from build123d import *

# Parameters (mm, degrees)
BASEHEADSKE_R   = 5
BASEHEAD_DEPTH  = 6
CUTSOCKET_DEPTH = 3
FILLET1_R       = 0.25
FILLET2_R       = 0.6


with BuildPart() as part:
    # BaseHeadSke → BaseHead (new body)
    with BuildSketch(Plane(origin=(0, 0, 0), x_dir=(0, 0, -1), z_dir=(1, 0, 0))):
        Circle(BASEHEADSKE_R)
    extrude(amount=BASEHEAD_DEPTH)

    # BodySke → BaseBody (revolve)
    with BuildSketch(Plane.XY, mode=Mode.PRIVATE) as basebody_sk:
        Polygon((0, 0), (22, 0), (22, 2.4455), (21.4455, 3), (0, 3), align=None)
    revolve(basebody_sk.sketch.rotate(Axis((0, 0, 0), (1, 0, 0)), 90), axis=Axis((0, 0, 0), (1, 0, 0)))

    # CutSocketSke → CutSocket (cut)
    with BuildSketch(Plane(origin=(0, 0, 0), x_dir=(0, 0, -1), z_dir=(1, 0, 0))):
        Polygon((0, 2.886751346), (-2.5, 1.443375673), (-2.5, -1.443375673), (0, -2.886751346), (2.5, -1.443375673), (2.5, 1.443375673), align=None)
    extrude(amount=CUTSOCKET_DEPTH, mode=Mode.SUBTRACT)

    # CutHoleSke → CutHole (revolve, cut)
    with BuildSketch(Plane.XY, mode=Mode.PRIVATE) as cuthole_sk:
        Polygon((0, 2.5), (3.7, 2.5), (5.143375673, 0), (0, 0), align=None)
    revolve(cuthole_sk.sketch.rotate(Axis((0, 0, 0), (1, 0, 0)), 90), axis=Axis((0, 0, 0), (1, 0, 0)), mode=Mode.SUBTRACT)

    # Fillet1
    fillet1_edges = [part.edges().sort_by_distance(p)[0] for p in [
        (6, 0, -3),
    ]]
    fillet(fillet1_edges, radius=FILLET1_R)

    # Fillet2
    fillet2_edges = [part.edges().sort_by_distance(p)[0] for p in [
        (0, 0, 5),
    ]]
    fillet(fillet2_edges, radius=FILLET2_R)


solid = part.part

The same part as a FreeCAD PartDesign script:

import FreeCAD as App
import Part
import Sketcher
Q = App.Units.Quantity


def edges_at(feature, points):
    """Names of the edges that pass closest to the given points."""
    edges = feature.Shape.Edges
    near = lambda p: min(range(len(edges)), key=lambda i: edges[i].distToShape(Part.Vertex(*p))[0])
    return sorted({f"Edge{near(p) + 1}" for p in points})

doc = App.newDocument("Part")
params = doc.addObject("Spreadsheet::Sheet", "Params")
for row, (alias, value) in enumerate([
    ("sketch1_diameter", "10 mm"),
    ("pad1_length", "6 mm"),
    ("sketch2_width", "22 mm"),
    ("sketch2_height", "3 mm"),
    ("revolution_angle", "360 deg"),
    ("pocket1_length", "3 mm"),
    ("sketch4_width", "3.7 mm"),
    ("sketch4_height", "2.5 mm"),
    ("groove_angle", "360 deg"),
    ("fillet_radius", "0.25 mm"),
    ("fillet2_radius", "0.6 mm"),
], start=1):
    params.set(f"A{row}", alias)
    params.set(f"B{row}", "=" + value)
    params.setAlias(f"B{row}", alias)

body = doc.addObject("PartDesign::Body", "Body")

# Sketch on YZ plane
sketch1 = body.newObject("Sketcher::SketchObject", "Sketch")
sketch1.AttachmentSupport = (doc.getObject("YZ_Plane"), [""])
sketch1.MapMode = "FlatFace"
sketch1.addGeometry(Part.Circle(App.Vector(0, 0, 0), App.Vector(0, 0, 1), 5), False)
sketch1.addConstraint(Sketcher.Constraint("Coincident", 0, 3, -1, 1))
sketch1.addConstraint(Sketcher.Constraint("Diameter", 0, 10.0))
sketch1.setExpression("Constraints[1]", "Params.sketch1_diameter")
pad1 = body.newObject("PartDesign::Pad", "Pad")
pad1.Profile = sketch1
pad1.setExpression("Length", "Params.pad1_length")

# Sketch on XY plane
sketch2 = body.newObject("Sketcher::SketchObject", "Sketch001")
sketch2.AttachmentSupport = (doc.getObject("XY_Plane"), [""])
sketch2.MapMode = "FlatFace"
sketch2.addGeometry(Part.LineSegment(App.Vector(0, 0, 0), App.Vector(22, 0, 0)), False)
sketch2.addGeometry(Part.LineSegment(App.Vector(22, 0, 0), App.Vector(22, 2.4, 0)), False)
sketch2.addGeometry(Part.LineSegment(App.Vector(22, 2.4, 0), App.Vector(21.4, 3, 0)), False)
sketch2.addGeometry(Part.LineSegment(App.Vector(21.4, 3, 0), App.Vector(0, 3, 0)), False)
sketch2.addGeometry(Part.LineSegment(App.Vector(0, 3, 0), App.Vector(0, 0, 0)), False)
sketch2.addConstraint(Sketcher.Constraint("Coincident", 0, 2, 1, 1))
sketch2.addConstraint(Sketcher.Constraint("Coincident", 1, 2, 2, 1))
sketch2.addConstraint(Sketcher.Constraint("Coincident", 2, 2, 3, 1))
sketch2.addConstraint(Sketcher.Constraint("Coincident", 3, 2, 4, 1))
sketch2.addConstraint(Sketcher.Constraint("Coincident", 4, 2, 0, 1))
sketch2.addConstraint(Sketcher.Constraint("Horizontal", 0))
sketch2.addConstraint(Sketcher.Constraint("Vertical", 1))
sketch2.addConstraint(Sketcher.Constraint("Horizontal", 3))
sketch2.addConstraint(Sketcher.Constraint("Vertical", 4))
sketch2.addConstraint(Sketcher.Constraint("Coincident", 4, 2, -1, 1))
sketch2.addConstraint(Sketcher.Constraint("DistanceX", 0, 1, 0, 2, 22.0))
sketch2.addConstraint(Sketcher.Constraint("DistanceY", 4, 2, 4, 1, 3.0))
sketch2.addConstraint(Sketcher.Constraint("Angle", 2, Q("135 deg")))
sketch2.addConstraint(Sketcher.Constraint("DistanceX", 3, 2, 3, 1, 21.4455))
sketch2.setExpression("Constraints[10]", "Params.sketch2_width")
sketch2.setExpression("Constraints[11]", "Params.sketch2_height")
revolution = body.newObject("PartDesign::Revolution", "Revolution")
revolution.Profile = sketch2
revolution.ReferenceAxis = (sketch2, ["H_Axis"])
revolution.setExpression("Angle", "Params.revolution_angle")

# Sketch on YZ plane
sketch3 = body.newObject("Sketcher::SketchObject", "Sketch002")
sketch3.AttachmentSupport = (doc.getObject("YZ_Plane"), [""])
sketch3.MapMode = "FlatFace"
sketch3.addGeometry(Part.LineSegment(App.Vector(2.9, 0, 0), App.Vector(1.4, 2.5, 0)), False)
sketch3.addGeometry(Part.LineSegment(App.Vector(1.4, 2.5, 0), App.Vector(-1.4, 2.5, 0)), False)
sketch3.addGeometry(Part.LineSegment(App.Vector(-1.4, 2.5, 0), App.Vector(-2.9, 0, 0)), False)
sketch3.addGeometry(Part.LineSegment(App.Vector(-2.9, 0, 0), App.Vector(-1.4, -2.5, 0)), False)
sketch3.addGeometry(Part.LineSegment(App.Vector(-1.4, -2.5, 0), App.Vector(1.4, -2.5, 0)), False)
sketch3.addGeometry(Part.LineSegment(App.Vector(1.4, -2.5, 0), App.Vector(2.9, 0, 0)), False)
sketch3.addConstraint(Sketcher.Constraint("Coincident", 0, 2, 1, 1))
sketch3.addConstraint(Sketcher.Constraint("Coincident", 1, 2, 2, 1))
sketch3.addConstraint(Sketcher.Constraint("Coincident", 2, 2, 3, 1))
sketch3.addConstraint(Sketcher.Constraint("Coincident", 3, 2, 4, 1))
sketch3.addConstraint(Sketcher.Constraint("Coincident", 4, 2, 5, 1))
sketch3.addConstraint(Sketcher.Constraint("Coincident", 5, 2, 0, 1))
sketch3.addConstraint(Sketcher.Constraint("Horizontal", 1))
sketch3.addConstraint(Sketcher.Constraint("Horizontal", 4))
sketch3.addConstraint(Sketcher.Constraint("Symmetric", 0, 2, 3, 2, -1, 1))
sketch3.addConstraint(Sketcher.Constraint("Symmetric", 2, 2, 5, 2, -1, 1))
sketch3.addConstraint(Sketcher.Constraint("PointOnObject", 2, 2, -1))
sketch3.addConstraint(Sketcher.Constraint("Parallel", 2, 5))
sketch3.addConstraint(Sketcher.Constraint("Vertical", 1, 2, 3, 2))
sketch3.addConstraint(Sketcher.Constraint("Angle", 0, Q("120 deg")))
sketch3.addConstraint(Sketcher.Constraint("DistanceY", 3, 2, 1, 2, 5.0))
sketch3.addConstraint(Sketcher.Constraint("DistanceX", 1, 2, 1, 1, 2.886751))
pocket1 = body.newObject("PartDesign::Pocket", "Pocket")
pocket1.Profile = sketch3
pocket1.setExpression("Length", "Params.pocket1_length")
pocket1.Reversed = True

# Sketch on XY plane
sketch4 = body.newObject("Sketcher::SketchObject", "Sketch003")
sketch4.AttachmentSupport = (doc.getObject("XY_Plane"), [""])
sketch4.MapMode = "FlatFace"
sketch4.addGeometry(Part.LineSegment(App.Vector(3.7, 2.5, 0), App.Vector(0, 2.5, 0)), False)
sketch4.addGeometry(Part.LineSegment(App.Vector(0, 2.5, 0), App.Vector(0, 0, 0)), False)
sketch4.addGeometry(Part.LineSegment(App.Vector(0, 0, 0), App.Vector(5.1, 0, 0)), False)
sketch4.addGeometry(Part.LineSegment(App.Vector(5.1, 0, 0), App.Vector(3.7, 2.5, 0)), False)
sketch4.addConstraint(Sketcher.Constraint("Coincident", 0, 2, 1, 1))
sketch4.addConstraint(Sketcher.Constraint("Coincident", 1, 2, 2, 1))
sketch4.addConstraint(Sketcher.Constraint("Coincident", 2, 2, 3, 1))
sketch4.addConstraint(Sketcher.Constraint("Coincident", 3, 2, 0, 1))
sketch4.addConstraint(Sketcher.Constraint("Horizontal", 0))
sketch4.addConstraint(Sketcher.Constraint("Vertical", 1))
sketch4.addConstraint(Sketcher.Constraint("Horizontal", 2))
sketch4.addConstraint(Sketcher.Constraint("Coincident", 1, 2, -1, 1))
sketch4.addConstraint(Sketcher.Constraint("Angle", 3, Q("120 deg")))
sketch4.addConstraint(Sketcher.Constraint("DistanceX", 0, 2, 0, 1, 3.7))
sketch4.addConstraint(Sketcher.Constraint("DistanceY", 1, 2, 1, 1, 2.5))
sketch4.setExpression("Constraints[9]", "Params.sketch4_width")
sketch4.setExpression("Constraints[10]", "Params.sketch4_height")
groove = body.newObject("PartDesign::Groove", "Groove")
groove.Profile = sketch4
groove.ReferenceAxis = (sketch4, ["H_Axis"])
groove.setExpression("Angle", "Params.groove_angle")
doc.recompute()

fillet = body.newObject("PartDesign::Fillet", "Fillet")
fillet.Base = (groove, edges_at(groove, [(6, 0, -3)]))
fillet.setExpression("Radius", "Params.fillet_radius")
doc.recompute()

fillet2 = body.newObject("PartDesign::Fillet", "Fillet001")
fillet2.Base = (fillet, edges_at(fillet, [(0, 0, 5)]))
fillet2.setExpression("Radius", "Params.fillet2_radius")

doc.recompute()
